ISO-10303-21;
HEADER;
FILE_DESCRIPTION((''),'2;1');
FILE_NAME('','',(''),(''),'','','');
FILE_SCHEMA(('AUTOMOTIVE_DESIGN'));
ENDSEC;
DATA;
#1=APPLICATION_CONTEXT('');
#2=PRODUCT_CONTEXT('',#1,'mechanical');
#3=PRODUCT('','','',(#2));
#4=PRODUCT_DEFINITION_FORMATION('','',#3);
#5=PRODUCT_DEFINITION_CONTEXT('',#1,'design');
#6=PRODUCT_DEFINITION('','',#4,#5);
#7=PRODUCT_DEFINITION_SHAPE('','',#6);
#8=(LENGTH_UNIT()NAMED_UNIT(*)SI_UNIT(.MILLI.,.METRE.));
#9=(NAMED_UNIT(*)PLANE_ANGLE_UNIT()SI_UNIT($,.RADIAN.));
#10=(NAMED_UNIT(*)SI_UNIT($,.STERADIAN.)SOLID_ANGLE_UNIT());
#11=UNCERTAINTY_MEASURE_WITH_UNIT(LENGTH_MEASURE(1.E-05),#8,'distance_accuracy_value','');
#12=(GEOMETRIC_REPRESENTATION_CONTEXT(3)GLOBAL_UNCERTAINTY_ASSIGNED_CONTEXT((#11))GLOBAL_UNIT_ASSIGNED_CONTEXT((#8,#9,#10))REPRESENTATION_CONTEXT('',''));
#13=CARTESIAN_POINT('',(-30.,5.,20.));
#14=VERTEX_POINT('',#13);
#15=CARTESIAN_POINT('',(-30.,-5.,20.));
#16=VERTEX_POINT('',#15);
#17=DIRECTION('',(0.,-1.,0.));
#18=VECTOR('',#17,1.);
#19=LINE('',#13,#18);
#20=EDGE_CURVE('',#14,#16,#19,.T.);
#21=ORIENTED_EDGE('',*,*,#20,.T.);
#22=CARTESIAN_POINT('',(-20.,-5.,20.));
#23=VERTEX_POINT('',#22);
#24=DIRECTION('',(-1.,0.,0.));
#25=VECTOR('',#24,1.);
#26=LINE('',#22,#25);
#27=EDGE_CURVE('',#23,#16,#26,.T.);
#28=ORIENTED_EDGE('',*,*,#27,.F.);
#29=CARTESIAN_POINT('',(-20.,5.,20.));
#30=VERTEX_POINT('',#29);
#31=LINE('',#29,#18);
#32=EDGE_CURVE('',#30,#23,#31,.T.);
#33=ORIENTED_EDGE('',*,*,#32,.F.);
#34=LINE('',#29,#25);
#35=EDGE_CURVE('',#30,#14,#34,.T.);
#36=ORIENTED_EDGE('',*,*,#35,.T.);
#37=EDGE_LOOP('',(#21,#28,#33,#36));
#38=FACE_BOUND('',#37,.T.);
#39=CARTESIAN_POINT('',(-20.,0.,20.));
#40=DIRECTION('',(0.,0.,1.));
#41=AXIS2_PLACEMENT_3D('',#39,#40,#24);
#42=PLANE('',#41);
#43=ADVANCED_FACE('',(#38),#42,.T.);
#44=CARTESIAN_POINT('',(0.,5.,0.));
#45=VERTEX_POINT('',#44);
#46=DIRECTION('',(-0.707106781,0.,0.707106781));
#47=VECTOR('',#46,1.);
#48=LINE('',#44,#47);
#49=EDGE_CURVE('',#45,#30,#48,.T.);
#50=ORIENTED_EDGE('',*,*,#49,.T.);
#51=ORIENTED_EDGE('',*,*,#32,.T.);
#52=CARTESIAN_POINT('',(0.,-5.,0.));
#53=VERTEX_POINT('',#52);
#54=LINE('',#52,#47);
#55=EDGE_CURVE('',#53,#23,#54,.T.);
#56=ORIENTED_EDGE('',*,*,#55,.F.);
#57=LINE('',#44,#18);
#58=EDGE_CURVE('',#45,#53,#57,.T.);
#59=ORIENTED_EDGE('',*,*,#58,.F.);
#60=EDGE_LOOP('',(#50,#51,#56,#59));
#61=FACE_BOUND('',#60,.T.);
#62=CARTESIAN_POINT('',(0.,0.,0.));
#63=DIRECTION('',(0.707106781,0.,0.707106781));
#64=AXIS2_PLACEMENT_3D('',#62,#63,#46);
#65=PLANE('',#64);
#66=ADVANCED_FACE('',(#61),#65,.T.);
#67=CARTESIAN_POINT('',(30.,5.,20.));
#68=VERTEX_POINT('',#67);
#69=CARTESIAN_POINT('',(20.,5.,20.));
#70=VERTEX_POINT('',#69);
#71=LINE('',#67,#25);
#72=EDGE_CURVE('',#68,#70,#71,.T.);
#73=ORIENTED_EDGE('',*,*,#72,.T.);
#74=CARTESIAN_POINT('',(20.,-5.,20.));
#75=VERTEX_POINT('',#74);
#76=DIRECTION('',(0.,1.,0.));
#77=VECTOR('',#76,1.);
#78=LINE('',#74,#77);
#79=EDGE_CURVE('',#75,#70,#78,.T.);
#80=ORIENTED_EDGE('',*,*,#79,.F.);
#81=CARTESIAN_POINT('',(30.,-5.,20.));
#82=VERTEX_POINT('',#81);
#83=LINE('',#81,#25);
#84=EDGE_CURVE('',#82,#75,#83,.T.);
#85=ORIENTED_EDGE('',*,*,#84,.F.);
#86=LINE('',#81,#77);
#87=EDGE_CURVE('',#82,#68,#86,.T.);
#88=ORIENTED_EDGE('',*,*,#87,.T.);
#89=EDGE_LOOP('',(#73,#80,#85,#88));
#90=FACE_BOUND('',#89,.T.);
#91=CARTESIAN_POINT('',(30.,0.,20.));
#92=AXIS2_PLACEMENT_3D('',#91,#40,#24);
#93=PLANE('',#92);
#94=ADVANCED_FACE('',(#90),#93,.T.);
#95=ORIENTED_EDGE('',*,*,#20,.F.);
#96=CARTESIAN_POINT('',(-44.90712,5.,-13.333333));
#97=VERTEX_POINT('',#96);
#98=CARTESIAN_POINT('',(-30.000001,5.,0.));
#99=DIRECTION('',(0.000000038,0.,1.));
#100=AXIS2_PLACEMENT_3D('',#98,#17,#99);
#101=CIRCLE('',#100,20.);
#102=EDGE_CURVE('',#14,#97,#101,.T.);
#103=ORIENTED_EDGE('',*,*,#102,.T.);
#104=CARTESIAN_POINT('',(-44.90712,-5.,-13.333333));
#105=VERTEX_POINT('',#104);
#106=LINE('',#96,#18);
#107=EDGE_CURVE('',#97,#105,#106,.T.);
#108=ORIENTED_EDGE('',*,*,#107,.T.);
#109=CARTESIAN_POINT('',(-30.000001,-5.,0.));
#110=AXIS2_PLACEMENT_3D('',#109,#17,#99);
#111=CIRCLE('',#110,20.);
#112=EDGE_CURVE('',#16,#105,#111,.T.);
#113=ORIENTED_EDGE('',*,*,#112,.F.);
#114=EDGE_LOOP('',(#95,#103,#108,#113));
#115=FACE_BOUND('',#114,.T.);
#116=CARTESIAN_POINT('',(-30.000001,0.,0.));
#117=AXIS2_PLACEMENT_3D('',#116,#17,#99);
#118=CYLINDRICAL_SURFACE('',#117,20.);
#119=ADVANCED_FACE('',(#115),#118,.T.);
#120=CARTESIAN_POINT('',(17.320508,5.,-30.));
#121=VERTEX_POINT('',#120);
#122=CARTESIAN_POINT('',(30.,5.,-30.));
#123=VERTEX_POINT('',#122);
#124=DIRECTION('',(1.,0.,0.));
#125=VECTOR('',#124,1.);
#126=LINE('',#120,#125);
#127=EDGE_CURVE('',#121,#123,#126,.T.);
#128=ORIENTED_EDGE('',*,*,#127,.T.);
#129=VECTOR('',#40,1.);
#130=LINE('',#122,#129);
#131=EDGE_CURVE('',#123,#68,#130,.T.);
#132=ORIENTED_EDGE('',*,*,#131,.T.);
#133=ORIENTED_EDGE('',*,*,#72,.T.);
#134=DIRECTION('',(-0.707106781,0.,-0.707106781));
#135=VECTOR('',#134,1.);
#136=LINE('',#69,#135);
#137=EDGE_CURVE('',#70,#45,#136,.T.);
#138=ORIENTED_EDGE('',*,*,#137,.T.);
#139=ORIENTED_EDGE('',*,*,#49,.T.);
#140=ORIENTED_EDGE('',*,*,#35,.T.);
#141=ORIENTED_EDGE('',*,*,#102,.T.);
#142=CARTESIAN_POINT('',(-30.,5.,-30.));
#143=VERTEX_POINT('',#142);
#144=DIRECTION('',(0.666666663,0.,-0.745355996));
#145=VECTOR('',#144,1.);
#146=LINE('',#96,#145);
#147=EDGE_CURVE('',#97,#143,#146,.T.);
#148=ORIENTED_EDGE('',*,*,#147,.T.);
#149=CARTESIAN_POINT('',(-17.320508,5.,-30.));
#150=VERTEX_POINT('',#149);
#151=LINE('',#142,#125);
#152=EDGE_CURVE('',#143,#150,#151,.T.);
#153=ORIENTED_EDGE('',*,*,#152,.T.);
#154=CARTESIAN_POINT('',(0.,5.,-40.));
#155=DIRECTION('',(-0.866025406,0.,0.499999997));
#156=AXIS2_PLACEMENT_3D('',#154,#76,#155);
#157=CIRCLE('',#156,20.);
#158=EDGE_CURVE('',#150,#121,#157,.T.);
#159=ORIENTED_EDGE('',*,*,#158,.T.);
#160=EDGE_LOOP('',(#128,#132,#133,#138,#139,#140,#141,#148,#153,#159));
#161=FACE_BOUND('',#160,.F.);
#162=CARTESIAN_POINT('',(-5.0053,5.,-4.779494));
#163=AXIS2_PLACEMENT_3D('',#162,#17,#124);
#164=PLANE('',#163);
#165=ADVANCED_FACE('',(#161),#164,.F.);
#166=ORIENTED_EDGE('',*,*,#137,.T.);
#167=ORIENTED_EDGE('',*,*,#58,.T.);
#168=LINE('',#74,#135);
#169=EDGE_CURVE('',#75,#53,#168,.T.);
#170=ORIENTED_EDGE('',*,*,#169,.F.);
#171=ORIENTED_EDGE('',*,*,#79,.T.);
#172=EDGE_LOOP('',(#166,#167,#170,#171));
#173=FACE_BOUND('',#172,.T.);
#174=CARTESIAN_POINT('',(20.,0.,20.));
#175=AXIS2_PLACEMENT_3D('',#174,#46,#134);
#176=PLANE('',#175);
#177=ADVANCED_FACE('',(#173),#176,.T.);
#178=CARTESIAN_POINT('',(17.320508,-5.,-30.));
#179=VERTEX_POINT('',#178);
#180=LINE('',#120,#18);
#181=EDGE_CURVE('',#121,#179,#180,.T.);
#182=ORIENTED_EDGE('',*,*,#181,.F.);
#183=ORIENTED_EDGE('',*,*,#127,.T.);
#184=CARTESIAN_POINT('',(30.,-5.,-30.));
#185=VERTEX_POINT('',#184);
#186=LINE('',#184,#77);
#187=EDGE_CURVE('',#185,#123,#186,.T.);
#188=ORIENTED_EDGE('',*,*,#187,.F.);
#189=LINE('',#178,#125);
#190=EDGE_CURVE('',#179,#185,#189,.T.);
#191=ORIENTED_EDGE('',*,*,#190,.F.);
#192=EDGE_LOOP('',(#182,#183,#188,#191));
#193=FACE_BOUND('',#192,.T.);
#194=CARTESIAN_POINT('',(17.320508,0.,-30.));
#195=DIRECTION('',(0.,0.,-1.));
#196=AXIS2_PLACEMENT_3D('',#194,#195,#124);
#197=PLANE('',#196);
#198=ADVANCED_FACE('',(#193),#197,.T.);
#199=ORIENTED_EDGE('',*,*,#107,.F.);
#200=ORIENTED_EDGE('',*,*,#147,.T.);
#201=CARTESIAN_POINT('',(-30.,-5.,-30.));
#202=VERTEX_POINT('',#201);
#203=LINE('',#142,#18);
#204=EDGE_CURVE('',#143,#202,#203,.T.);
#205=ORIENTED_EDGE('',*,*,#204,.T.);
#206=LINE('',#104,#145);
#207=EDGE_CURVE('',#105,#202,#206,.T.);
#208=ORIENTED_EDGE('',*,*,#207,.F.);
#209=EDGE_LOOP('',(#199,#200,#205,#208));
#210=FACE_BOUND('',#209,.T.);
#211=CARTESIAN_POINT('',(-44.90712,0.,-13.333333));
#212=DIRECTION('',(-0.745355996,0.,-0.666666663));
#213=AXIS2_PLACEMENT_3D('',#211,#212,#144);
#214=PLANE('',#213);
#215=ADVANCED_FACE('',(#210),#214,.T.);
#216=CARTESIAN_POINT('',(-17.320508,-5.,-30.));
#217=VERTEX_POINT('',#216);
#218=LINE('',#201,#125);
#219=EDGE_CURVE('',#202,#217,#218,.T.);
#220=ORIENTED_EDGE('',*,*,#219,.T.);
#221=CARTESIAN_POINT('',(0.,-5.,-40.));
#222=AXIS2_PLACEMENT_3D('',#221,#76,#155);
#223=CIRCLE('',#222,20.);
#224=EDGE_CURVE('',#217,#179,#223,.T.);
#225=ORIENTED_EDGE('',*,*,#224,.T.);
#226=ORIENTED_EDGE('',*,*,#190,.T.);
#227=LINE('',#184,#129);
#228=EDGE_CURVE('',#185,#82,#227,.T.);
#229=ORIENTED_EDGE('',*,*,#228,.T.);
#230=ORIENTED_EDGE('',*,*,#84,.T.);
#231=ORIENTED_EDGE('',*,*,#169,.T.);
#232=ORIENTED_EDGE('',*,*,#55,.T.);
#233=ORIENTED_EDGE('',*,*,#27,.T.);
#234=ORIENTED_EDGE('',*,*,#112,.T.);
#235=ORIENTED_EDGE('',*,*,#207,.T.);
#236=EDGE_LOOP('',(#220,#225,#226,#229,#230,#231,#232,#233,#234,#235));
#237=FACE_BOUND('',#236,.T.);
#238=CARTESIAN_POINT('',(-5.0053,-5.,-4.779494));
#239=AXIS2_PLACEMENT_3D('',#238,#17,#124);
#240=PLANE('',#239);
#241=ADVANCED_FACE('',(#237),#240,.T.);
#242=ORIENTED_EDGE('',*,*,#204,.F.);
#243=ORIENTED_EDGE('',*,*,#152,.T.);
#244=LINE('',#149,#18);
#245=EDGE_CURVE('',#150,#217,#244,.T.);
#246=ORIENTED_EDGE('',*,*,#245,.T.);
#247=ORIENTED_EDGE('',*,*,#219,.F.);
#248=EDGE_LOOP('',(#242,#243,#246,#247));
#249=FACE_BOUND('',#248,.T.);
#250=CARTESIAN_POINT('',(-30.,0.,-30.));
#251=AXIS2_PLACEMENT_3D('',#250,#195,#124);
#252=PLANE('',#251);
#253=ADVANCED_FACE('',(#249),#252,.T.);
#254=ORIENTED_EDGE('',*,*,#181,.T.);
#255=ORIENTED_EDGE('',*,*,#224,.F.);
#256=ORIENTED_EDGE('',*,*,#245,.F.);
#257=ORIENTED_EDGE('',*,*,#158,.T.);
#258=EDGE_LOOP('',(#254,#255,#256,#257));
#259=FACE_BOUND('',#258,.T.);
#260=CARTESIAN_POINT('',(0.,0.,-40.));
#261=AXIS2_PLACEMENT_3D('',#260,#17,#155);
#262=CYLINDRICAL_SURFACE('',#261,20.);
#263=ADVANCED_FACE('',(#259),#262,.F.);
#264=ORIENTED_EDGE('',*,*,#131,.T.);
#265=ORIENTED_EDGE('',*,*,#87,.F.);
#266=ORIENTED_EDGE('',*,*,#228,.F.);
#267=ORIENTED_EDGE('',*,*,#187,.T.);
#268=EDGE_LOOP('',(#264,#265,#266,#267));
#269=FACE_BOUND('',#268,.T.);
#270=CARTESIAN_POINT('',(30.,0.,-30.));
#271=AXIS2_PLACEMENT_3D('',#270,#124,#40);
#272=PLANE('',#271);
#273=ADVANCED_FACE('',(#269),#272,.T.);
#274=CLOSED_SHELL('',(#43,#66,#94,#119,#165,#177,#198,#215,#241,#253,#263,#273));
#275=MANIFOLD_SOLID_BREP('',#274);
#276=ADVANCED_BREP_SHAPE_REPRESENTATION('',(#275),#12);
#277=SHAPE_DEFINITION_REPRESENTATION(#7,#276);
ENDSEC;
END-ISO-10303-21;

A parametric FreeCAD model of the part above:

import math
import FreeCAD as App
import Part
import Sketcher

doc = App.newDocument("Part")
body = doc.addObject("PartDesign::Body", "Body")

sketch1 = body.newObject("Sketcher::SketchObject", "Sketch")
sketch1.AttachmentSupport = (doc.getObject("XZ_Plane"), [""])
sketch1.MapMode = "FlatFace"
sketch1.addGeometry(Part.LineSegment(App.Vector(20, 20, 0), App.Vector(0, 0, 0)), False)
sketch1.addGeometry(Part.LineSegment(App.Vector(0, 0, 0), App.Vector(-20, 20, 0)), False)
sketch1.addGeometry(Part.LineSegment(App.Vector(-20, 20, 0), App.Vector(-30, 20, 0)), False)
sketch1.addGeometry(Part.ArcOfCircle(Part.Circle(App.Vector(-30, 0, 0), App.Vector(0, 0, 1), 20), math.radians(90), math.radians(222)), False)
sketch1.addGeometry(Part.LineSegment(App.Vector(-45, -13, 0), App.Vector(-30, -30, 0)), False)
sketch1.addGeometry(Part.LineSegment(App.Vector(-30, -30, 0), App.Vector(-17, -30, 0)), False)
sketch1.addGeometry(Part.ArcOfCircle(Part.Circle(App.Vector(0, -40, 0), App.Vector(0, 0, 1), 20), math.radians(30), math.radians(150)), False)
sketch1.addGeometry(Part.LineSegment(App.Vector(17, -30, 0), App.Vector(30, -30, 0)), False)
sketch1.addGeometry(Part.LineSegment(App.Vector(30, -30, 0), App.Vector(30, 20, 0)), False)
sketch1.addGeometry(Part.LineSegment(App.Vector(30, 20, 0), App.Vector(20, 20, 0)), False)
sketch1.addConstraint(Sketcher.Constraint("Coincident", 0, 2, 1, 1))
sketch1.addConstraint(Sketcher.Constraint("Coincident", 1, 2, 2, 1))
sketch1.addConstraint(Sketcher.Constraint("Tangent", 2, 2, 3, 1))
sketch1.addConstraint(Sketcher.Constraint("Tangent", 3, 2, 4, 1))
sketch1.addConstraint(Sketcher.Constraint("Coincident", 4, 2, 5, 1))
sketch1.addConstraint(Sketcher.Constraint("Coincident", 5, 2, 6, 2))
sketch1.addConstraint(Sketcher.Constraint("Coincident", 6, 1, 7, 1))
sketch1.addConstraint(Sketcher.Constraint("Coincident", 7, 2, 8, 1))
sketch1.addConstraint(Sketcher.Constraint("Coincident", 8, 2, 9, 1))
sketch1.addConstraint(Sketcher.Constraint("Coincident", 9, 2, 0, 1))
sketch1.addConstraint(Sketcher.Constraint("Horizontal", 2))
sketch1.addConstraint(Sketcher.Constraint("Horizontal", 5))
sketch1.addConstraint(Sketcher.Constraint("Horizontal", 7))
sketch1.addConstraint(Sketcher.Constraint("Vertical", 8))
sketch1.addConstraint(Sketcher.Constraint("Horizontal", 9))
sketch1.addConstraint(Sketcher.Constraint("Coincident", 0, 2, -1, 1))
sketch1.addConstraint(Sketcher.Constraint("Equal", 3, 6))
sketch1.addConstraint(Sketcher.Constraint("Symmetric", 5, 2, 6, 1, -2))
sketch1.addConstraint(Sketcher.Constraint("Symmetric", 2, 2, 8, 2, -2))
sketch1.addConstraint(Sketcher.Constraint("PointOnObject", 3, 3, -1))
sketch1.addConstraint(Sketcher.Constraint("Perpendicular", 0, 1))
sketch1.addConstraint(Sketcher.Constraint("Vertical", 2, 2, 4, 2))
sketch1.addConstraint(Sketcher.Constraint("Equal", 2, 9))
sketch1.addConstraint(Sketcher.Constraint("Radius", 3, 20.0))
sketch1.addConstraint(Sketcher.Constraint("DistanceX", 2, 2, 2, 1, 10.0))
sketch1.addConstraint(Sketcher.Constraint("DistanceY", 8, 1, 8, 2, 50.0))
sketch1.addConstraint(Sketcher.Constraint("DistanceY", 6, 3, -1, 1, 40.0))
pad1 = body.newObject("PartDesign::Pad", "Pad")
pad1.Profile = sketch1
pad1.Length = 10
pad1.Midplane = True

doc.recompute()
